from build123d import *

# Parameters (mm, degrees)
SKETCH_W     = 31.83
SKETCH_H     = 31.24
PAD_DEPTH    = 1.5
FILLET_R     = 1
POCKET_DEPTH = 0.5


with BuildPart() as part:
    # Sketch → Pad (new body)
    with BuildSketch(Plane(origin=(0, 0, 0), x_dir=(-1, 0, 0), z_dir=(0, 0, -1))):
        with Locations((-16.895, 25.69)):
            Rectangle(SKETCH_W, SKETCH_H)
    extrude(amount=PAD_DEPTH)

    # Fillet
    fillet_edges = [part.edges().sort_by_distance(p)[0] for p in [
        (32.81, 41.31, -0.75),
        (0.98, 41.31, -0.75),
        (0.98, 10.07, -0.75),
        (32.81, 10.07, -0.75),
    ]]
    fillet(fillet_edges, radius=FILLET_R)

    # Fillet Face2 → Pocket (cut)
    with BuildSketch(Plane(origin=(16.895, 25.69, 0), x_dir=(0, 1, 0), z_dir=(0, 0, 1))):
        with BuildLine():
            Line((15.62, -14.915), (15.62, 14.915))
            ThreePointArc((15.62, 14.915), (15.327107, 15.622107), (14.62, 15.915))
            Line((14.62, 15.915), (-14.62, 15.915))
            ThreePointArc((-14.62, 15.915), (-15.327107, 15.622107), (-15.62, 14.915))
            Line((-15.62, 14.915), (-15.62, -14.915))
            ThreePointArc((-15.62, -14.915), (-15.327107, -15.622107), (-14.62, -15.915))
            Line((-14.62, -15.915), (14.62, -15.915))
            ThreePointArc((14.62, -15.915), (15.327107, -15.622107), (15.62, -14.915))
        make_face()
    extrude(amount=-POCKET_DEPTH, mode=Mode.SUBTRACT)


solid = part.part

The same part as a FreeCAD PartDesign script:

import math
import FreeCAD as App
import Part
import Sketcher
Q = App.Units.Quantity


def edges_at(feature, points):
    """Names of the edges that pass closest to the given points."""
    edges = feature.Shape.Edges
    near = lambda p: min(range(len(edges)), key=lambda i: edges[i].distToShape(Part.Vertex(*p))[0])
    return sorted({f"Edge{near(p) + 1}" for p in points})

doc = App.newDocument("Part")
params = doc.addObject("Spreadsheet::Sheet", "Params")
for row, (alias, value) in enumerate([
    ("sketch1_width", "31.83 mm"),
    ("sketch1_height", "31.24 mm"),
    ("pad1_length", "1.5 mm"),
    ("fillet_radius", "1 mm"),
    ("sketch2_radius", "0.999999 mm"),
    ("sketch2_width", "29.83 mm"),
    ("sketch2_height", "29.24 mm"),
    ("pocket1_length", "0.5 mm"),
], start=1):
    params.set(f"A{row}", alias)
    params.set(f"B{row}", "=" + value)
    params.setAlias(f"B{row}", alias)

body = doc.addObject("PartDesign::Body", "Body")

# Sketch on XY plane
sketch1 = body.newObject("Sketcher::SketchObject", "Sketch")
sketch1.AttachmentSupport = (doc.getObject("XY_Plane"), [""])
sketch1.MapMode = "FlatFace"
sketch1.addGeometry([
    Part.LineSegment(App.Vector(33, 41, 0), App.Vector(33, 10, 0)),
    Part.LineSegment(App.Vector(33, 10, 0), App.Vector(1, 10, 0)),
    Part.LineSegment(App.Vector(1, 10, 0), App.Vector(1, 41, 0)),
    Part.LineSegment(App.Vector(1, 41, 0), App.Vector(33, 41, 0)),
], False)
sketch1.addConstraint([
    Sketcher.Constraint("Coincident", 0, 2, 1, 1),
    Sketcher.Constraint("Coincident", 1, 2, 2, 1),
    Sketcher.Constraint("Coincident", 2, 2, 3, 1),
    Sketcher.Constraint("Coincident", 3, 2, 0, 1),
    Sketcher.Constraint("Vertical", 0),
    Sketcher.Constraint("Horizontal", 1),
    Sketcher.Constraint("Vertical", 2),
    Sketcher.Constraint("Horizontal", 3),
    Sketcher.Constraint("DistanceX", 1, 2, 1, 1, Q("31.83 mm")),
    Sketcher.Constraint("DistanceY", 0, 2, 0, 1, Q("31.24 mm")),
    Sketcher.Constraint("DistanceX", -1, 1, 0, 2, Q("32.81 mm")),
    Sketcher.Constraint("DistanceY", -1, 1, 0, 2, Q("10.07 mm")),
])
sketch1.setExpression("Constraints[8]", "Params.sketch1_width")
sketch1.setExpression("Constraints[9]", "Params.sketch1_height")
pad1 = body.newObject("PartDesign::Pad", "Pad")
pad1.Profile = sketch1
pad1.setExpression("Length", "Params.pad1_length")
pad1.Reversed = True
doc.recompute()

fillet = body.newObject("PartDesign::Fillet", "Fillet")
fillet.Base = (pad1, edges_at(pad1, [
    (32.81, 41.31, -0.75),
    (0.98, 41.31, -0.75),
    (0.98, 10.07, -0.75),
    (32.81, 10.07, -0.75),
]))
fillet.setExpression("Radius", "Params.fillet_radius")

# Sketch on XY plane
sketch2 = body.newObject("Sketcher::SketchObject", "Sketch001")
sketch2.AttachmentSupport = (doc.getObject("XY_Plane"), [""])
sketch2.MapMode = "FlatFace"
sketch2.addGeometry([
    Part.LineSegment(App.Vector(31.8, 41.3, 0), App.Vector(2, 41.3, 0)),  # 0
    Part.ArcOfCircle(Part.Circle(App.Vector(2, 40.3, 0), App.Vector(0, 0, 1), 1), math.radians(90), math.radians(180)),  # 1
    Part.LineSegment(App.Vector(1, 40.3, 0), App.Vector(1, 11.1, 0)),  # 2
    Part.ArcOfCircle(Part.Circle(App.Vector(2, 11.1, 0), App.Vector(0, 0, 1), 1), math.radians(180), math.radians(270)),  # 3
    Part.LineSegment(App.Vector(2, 10.1, 0), App.Vector(31.8, 10.1, 0)),  # 4
    Part.ArcOfCircle(Part.Circle(App.Vector(31.8, 11.1, 0), App.Vector(0, 0, 1), 1), math.radians(-90), math.radians(0)),  # 5
    Part.LineSegment(App.Vector(32.8, 11.1, 0), App.Vector(32.8, 40.3, 0)),  # 6
    Part.ArcOfCircle(Part.Circle(App.Vector(31.8, 40.3, 0), App.Vector(0, 0, 1), 1), math.radians(0), math.radians(90)),  # 7
], False)
sketch2.addConstraint([
    Sketcher.Constraint("Tangent", 0, 2, 1, 1),
    Sketcher.Constraint("Tangent", 1, 2, 2, 1),
    Sketcher.Constraint("Tangent", 2, 2, 3, 1),
    Sketcher.Constraint("Tangent", 3, 2, 4, 1),
    Sketcher.Constraint("Tangent", 4, 2, 5, 1),
    Sketcher.Constraint("Tangent", 5, 2, 6, 1),
    Sketcher.Constraint("Tangent", 6, 2, 7, 1),
    Sketcher.Constraint("Tangent", 7, 2, 0, 1),
    Sketcher.Constraint("Horizontal", 0),
    Sketcher.Constraint("Vertical", 2),
    Sketcher.Constraint("Horizontal", 4),
    Sketcher.Constraint("Vertical", 6),
    Sketcher.Constraint("Equal", 1, 3),
    Sketcher.Constraint("Equal", 3, 5),
    Sketcher.Constraint("Equal", 5, 7),
    Sketcher.Constraint("Radius", 1, Q("0.999999 mm")),
    Sketcher.Constraint("DistanceX", 0, 2, 0, 1, Q("29.83 mm")),
    Sketcher.Constraint("DistanceY", 2, 2, 2, 1, Q("29.24 mm")),
    Sketcher.Constraint("DistanceX", -1, 1, 1, 3, Q("1.979999 mm")),
    Sketcher.Constraint("DistanceY", -1, 1, 1, 3, Q("40.310001 mm")),
])
sketch2.setExpression("Constraints[15]", "Params.sketch2_radius")
sketch2.setExpression("Constraints[16]", "Params.sketch2_width")
sketch2.setExpression("Constraints[17]", "Params.sketch2_height")
pocket1 = body.newObject("PartDesign::Pocket", "Pocket")
pocket1.Profile = sketch2
pocket1.setExpression("Length", "Params.pocket1_length")

doc.recompute()
